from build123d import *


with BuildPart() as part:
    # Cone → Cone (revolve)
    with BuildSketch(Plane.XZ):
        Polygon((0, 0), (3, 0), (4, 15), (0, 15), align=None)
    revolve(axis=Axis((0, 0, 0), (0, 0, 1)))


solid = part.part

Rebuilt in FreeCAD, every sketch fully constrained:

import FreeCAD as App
import Part
import Sketcher

V = App.Vector


def add_polygon(sketch, points):
    """Adds a closed chain of lines whose ends are joined by coincident constraints."""
    first, n = sketch.GeometryCount, len(points)
    for a, b in zip(points, points[1:] + points[:1]):
        sketch.addGeometry(Part.LineSegment(App.Vector(*a, 0), App.Vector(*b, 0)), False)
    for i in range(n):
        sketch.addConstraint(Sketcher.Constraint("Coincident", first + i, 2, first + (i + 1) % n, 1))

doc = App.newDocument("Part")
body = doc.addObject("PartDesign::Body", "Body")

sketch1 = doc.addObject("Sketcher::SketchObject", "Sketch")
body.addObject(sketch1)
sketch1.AttachmentSupport = (doc.XZ_Plane, [""])
sketch1.MapMode = "FlatFace"
add_polygon(sketch1, [(0, 0), (3, 0), (4, 15), (0, 15)])
sketch1.addConstraint([
    Sketcher.Constraint("Horizontal", 0),
    Sketcher.Constraint("Horizontal", 2),
    Sketcher.Constraint("Vertical", 3),
    Sketcher.Constraint("Coincident", 3, 2, -1, 1),
    Sketcher.Constraint("DistanceX", 0, 1, 0, 2, 3.0),
    Sketcher.Constraint("DistanceX", 2, 2, 2, 1, 4.0),
    Sketcher.Constraint("DistanceY", 3, 2, 3, 1, 15.0),
])
revolution = doc.addObject("PartDesign::Revolution", "Revolution")
body.addObject(revolution)
revolution.Profile = sketch1
revolution.ReferenceAxis = (sketch1, ["V_Axis"])
revolution.Angle = 360

doc.recompute()
